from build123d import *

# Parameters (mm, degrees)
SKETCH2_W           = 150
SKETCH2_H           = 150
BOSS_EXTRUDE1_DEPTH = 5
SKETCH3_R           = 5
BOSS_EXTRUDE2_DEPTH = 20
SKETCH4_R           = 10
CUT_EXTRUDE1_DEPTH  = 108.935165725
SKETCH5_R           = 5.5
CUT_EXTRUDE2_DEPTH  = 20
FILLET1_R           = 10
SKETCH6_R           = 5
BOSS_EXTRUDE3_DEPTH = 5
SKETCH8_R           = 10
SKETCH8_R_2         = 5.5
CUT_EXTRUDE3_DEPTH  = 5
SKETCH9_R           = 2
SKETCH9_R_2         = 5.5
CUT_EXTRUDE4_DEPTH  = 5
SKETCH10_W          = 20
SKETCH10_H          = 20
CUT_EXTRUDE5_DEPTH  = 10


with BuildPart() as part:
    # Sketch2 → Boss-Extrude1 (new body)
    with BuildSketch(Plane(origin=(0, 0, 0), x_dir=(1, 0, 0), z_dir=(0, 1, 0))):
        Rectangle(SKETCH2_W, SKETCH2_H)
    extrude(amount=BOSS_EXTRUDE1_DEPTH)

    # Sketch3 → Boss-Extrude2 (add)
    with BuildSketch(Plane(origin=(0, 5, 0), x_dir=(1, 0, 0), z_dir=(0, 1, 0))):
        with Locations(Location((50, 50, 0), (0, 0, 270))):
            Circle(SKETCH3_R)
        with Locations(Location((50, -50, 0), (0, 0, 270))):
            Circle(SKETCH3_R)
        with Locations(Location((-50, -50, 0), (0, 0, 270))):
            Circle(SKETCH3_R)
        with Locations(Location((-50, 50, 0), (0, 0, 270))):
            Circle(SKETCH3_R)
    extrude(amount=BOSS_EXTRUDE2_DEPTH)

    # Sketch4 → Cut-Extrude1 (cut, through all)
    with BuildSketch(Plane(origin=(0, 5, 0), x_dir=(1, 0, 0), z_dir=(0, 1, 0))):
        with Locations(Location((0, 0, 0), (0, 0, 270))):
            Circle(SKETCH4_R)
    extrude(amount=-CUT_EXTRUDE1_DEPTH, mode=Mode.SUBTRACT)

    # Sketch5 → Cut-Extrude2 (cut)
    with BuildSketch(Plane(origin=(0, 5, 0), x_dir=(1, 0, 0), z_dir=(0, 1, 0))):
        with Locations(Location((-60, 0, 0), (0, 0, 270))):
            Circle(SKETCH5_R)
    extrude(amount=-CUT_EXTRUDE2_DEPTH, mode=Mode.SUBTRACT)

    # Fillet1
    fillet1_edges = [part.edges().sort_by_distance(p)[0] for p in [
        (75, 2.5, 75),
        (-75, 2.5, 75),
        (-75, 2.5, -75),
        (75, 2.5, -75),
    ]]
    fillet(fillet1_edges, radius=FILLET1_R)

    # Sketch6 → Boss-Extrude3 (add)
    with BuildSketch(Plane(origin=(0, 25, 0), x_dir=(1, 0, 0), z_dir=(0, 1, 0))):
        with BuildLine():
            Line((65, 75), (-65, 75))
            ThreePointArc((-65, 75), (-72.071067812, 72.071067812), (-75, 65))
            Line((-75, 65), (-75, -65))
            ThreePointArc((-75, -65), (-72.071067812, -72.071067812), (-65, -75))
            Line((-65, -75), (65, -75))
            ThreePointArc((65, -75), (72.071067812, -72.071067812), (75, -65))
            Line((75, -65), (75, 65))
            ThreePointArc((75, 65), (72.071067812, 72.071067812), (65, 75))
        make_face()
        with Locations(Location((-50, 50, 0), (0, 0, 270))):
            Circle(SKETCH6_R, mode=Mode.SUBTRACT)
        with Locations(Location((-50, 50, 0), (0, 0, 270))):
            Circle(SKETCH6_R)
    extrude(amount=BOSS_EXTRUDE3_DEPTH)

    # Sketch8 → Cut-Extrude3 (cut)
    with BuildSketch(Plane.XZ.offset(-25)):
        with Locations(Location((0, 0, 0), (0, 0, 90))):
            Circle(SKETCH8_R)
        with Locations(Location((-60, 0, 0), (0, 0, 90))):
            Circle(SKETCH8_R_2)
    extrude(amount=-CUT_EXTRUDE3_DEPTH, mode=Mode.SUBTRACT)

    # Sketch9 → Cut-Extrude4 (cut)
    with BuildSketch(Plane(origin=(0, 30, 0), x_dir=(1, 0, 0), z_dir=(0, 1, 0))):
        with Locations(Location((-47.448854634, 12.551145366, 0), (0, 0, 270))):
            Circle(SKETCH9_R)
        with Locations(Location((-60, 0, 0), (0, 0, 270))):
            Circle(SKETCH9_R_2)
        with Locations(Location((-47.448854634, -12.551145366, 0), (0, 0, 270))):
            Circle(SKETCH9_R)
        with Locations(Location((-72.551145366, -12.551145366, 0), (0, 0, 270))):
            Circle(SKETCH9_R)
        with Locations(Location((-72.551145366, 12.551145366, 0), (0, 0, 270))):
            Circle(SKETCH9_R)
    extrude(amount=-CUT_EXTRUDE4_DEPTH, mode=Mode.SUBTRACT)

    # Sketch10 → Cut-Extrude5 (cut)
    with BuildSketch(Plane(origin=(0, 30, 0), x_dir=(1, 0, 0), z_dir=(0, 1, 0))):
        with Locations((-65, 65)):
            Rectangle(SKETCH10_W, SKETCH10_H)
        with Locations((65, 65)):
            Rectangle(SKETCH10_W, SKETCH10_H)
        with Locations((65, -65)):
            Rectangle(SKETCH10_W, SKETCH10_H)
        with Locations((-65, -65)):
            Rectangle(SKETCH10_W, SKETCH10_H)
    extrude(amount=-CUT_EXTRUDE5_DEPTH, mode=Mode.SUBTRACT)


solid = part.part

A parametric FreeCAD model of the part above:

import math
import FreeCAD as App
import Part
import Sketcher
from FreeCAD import Vector
Q = App.Units.Quantity


def edges_at(feature, points):
    """Names of the edges that pass closest to the given points."""
    edges = feature.Shape.Edges
    near = lambda p: min(range(len(edges)), key=lambda i: edges[i].distToShape(Part.Vertex(*p))[0])
    return sorted({f"Edge{near(p) + 1}" for p in points})


def add_polygon(sketch, points):
    """Adds a closed chain of lines whose ends are joined by coincident constraints."""
    first, n = sketch.GeometryCount, len(points)
    for a, b in zip(points, points[1:] + points[:1]):
        sketch.addGeometry(Part.LineSegment(App.Vector(*a, 0), App.Vector(*b, 0)), False)
    for i in range(n):
        sketch.addConstraint(Sketcher.Constraint("Coincident", first + i, 2, first + (i + 1) % n, 1))

doc = App.newDocument("Part")
body = doc.addObject("PartDesign::Body", "Body")

# Sketch on XZ plane
sketch1 = doc.addObject("Sketcher::SketchObject", "Sketch")
body.addObject(sketch1)
sketch1.AttachmentSupport = (doc.XZ_Plane, [""])
sketch1.MapMode = "FlatFace"
add_polygon(sketch1, [(-75, -75), (-75, 75), (75, 75), (75, -75)])  # lines 0-3
sketch1.addConstraint(Sketcher.Constraint("Vertical", 0))
sketch1.addConstraint(Sketcher.Constraint("Horizontal", 1))
sketch1.addConstraint(Sketcher.Constraint("Vertical", 2))
sketch1.addConstraint(Sketcher.Constraint("Horizontal", 3))
sketch1.addConstraint(Sketcher.Constraint("Symmetric", 0, 2, 2, 2, -1, 1))
sketch1.addConstraint(Sketcher.Constraint("Equal", 3, 0))
sketch1.addConstraint(Sketcher.Constraint("DistanceX", 1, 1, 1, 2, Q("150 mm")))
pad1 = doc.addObject("PartDesign::Pad", "Pad")
body.addObject(pad1)
pad1.Profile = sketch1
pad1.Length = 5
pad1.Reversed = True

# Sketch on XZ plane
sketch2 = doc.addObject("Sketcher::SketchObject", "Sketch001")
body.addObject(sketch2)
sketch2.AttachmentSupport = (doc.XZ_Plane, [""])
sketch2.MapMode = "FlatFace"
sketch2.AttachmentOffset = App.Placement(Vector(0, 0, -5), App.Rotation())
sketch2.addGeometry(Part.Circle(Vector(50, -50, 0), Vector(0, 0, 1), 5), False)
sketch2.addGeometry(Part.Circle(Vector(50, 50, 0), Vector(0, 0, 1), 5), False)
sketch2.addGeometry(Part.Circle(Vector(-50, 50, 0), Vector(0, 0, 1), 5), False)
sketch2.addGeometry(Part.Circle(Vector(-50, -50, 0), Vector(0, 0, 1), 5), False)
sketch2.addConstraint(Sketcher.Constraint("Equal", 0, 1))
sketch2.addConstraint(Sketcher.Constraint("Equal", 1, 2))
sketch2.addConstraint(Sketcher.Constraint("Equal", 2, 3))
sketch2.addConstraint(Sketcher.Constraint("Symmetric", 0, 3, 2, 3, -1, 1))
sketch2.addConstraint(Sketcher.Constraint("Symmetric", 1, 3, 3, 3, -1, 1))
sketch2.addConstraint(Sketcher.Constraint("Symmetric", 1, 3, 2, 3, -2))
sketch2.addConstraint(Sketcher.Constraint("Diameter", 0, Q("10 mm")))
sketch2.addConstraint(Sketcher.Constraint("DistanceX", -1, 1, 0, 3, Q("50 mm")))
sketch2.addConstraint(Sketcher.Constraint("DistanceY", 0, 3, -1, 1, Q("50 mm")))
pad2 = doc.addObject("PartDesign::Pad", "Pad001")
body.addObject(pad2)
pad2.Profile = sketch2
pad2.Length = 20
pad2.Reversed = True

# Sketch on XZ plane
sketch3 = doc.addObject("Sketcher::SketchObject", "Sketch002")
body.addObject(sketch3)
sketch3.AttachmentSupport = (doc.XZ_Plane, [""])
sketch3.MapMode = "FlatFace"
sketch3.AttachmentOffset = App.Placement(Vector(0, 0, -5), App.Rotation())
sketch3.addGeometry(Part.Circle(Vector(0, 0, 0), Vector(0, 0, 1), 10), False)
sketch3.addConstraint(Sketcher.Constraint("Coincident", 0, 3, -1, 1))
sketch3.addConstraint(Sketcher.Constraint("Diameter", 0, Q("20 mm")))
pocket1 = doc.addObject("PartDesign::Pocket", "Pocket")
body.addObject(pocket1)
pocket1.Profile = sketch3
pocket1.Type = "ThroughAll"
pocket1.Reversed = True

# Sketch on XZ plane
sketch4 = doc.addObject("Sketcher::SketchObject", "Sketch003")
body.addObject(sketch4)
sketch4.AttachmentSupport = (doc.XZ_Plane, [""])
sketch4.MapMode = "FlatFace"
sketch4.AttachmentOffset = App.Placement(Vector(0, 0, -5), App.Rotation())
sketch4.addGeometry(Part.Circle(Vector(-60, 0, 0), Vector(0, 0, 1), 5.5), False)
sketch4.addConstraint(Sketcher.Constraint("PointOnObject", 0, 3, -1))
sketch4.addConstraint(Sketcher.Constraint("Diameter", 0, Q("11 mm")))
sketch4.addConstraint(Sketcher.Constraint("DistanceX", 0, 3, -1, 1, Q("60 mm")))
pocket2 = doc.addObject("PartDesign::Pocket", "Pocket001")
body.addObject(pocket2)
pocket2.Profile = sketch4
pocket2.Length = 20
pocket2.Reversed = True
doc.recompute()

fillet = doc.addObject("PartDesign::Fillet", "Fillet")
body.addObject(fillet)
fillet.Base = (pocket2, edges_at(pocket2, [
    (75, 2.5, 75),
    (-75, 2.5, 75),
    (-75, 2.5, -75),
    (75, 2.5, -75),
]))
fillet.Radius = 10

# Sketch on XZ plane
sketch5 = doc.addObject("Sketcher::SketchObject", "Sketch004")
body.addObject(sketch5)
sketch5.AttachmentSupport = (doc.XZ_Plane, [""])
sketch5.MapMode = "FlatFace"
sketch5.AttachmentOffset = App.Placement(Vector(0, 0, -25), App.Rotation())
sketch5.addGeometry(Part.LineSegment(Vector(65, -75, 0), Vector(-65, -75, 0)), False)
sketch5.addGeometry(Part.ArcOfCircle(Part.Circle(Vector(-65, -65, 0), Vector(0, 0, 1), 10), math.radians(180), math.radians(270)), False)
sketch5.addGeometry(Part.LineSegment(Vector(-75, -65, 0), Vector(-75, 65, 0)), False)
sketch5.addGeometry(Part.ArcOfCircle(Part.Circle(Vector(-65, 65, 0), Vector(0, 0, 1), 10), math.radians(90), math.radians(180)), False)
sketch5.addGeometry(Part.LineSegment(Vector(-65, 75, 0), Vector(65, 75, 0)), False)
sketch5.addGeometry(Part.ArcOfCircle(Part.Circle(Vector(65, 65, 0), Vector(0, 0, 1), 10), math.radians(0), math.radians(90)), False)
sketch5.addGeometry(Part.LineSegment(Vector(75, 65, 0), Vector(75, -65, 0)), False)
sketch5.addGeometry(Part.ArcOfCircle(Part.Circle(Vector(65, -65, 0), Vector(0, 0, 1), 10), math.radians(-90), math.radians(0)), False)
sketch5.addConstraint(Sketcher.Constraint("Tangent", 0, 2, 1, 2))
sketch5.addConstraint(Sketcher.Constraint("Tangent", 1, 1, 2, 1))
sketch5.addConstraint(Sketcher.Constraint("Tangent", 2, 2, 3, 2))
sketch5.addConstraint(Sketcher.Constraint("Tangent", 3, 1, 4, 1))
sketch5.addConstraint(Sketcher.Constraint("Tangent", 4, 2, 5, 2))
sketch5.addConstraint(Sketcher.Constraint("Tangent", 5, 1, 6, 1))
sketch5.addConstraint(Sketcher.Constraint("Tangent", 6, 2, 7, 2))
sketch5.addConstraint(Sketcher.Constraint("Tangent", 7, 1, 0, 1))
sketch5.addConstraint(Sketcher.Constraint("Horizontal", 0))
sketch5.addConstraint(Sketcher.Constraint("Vertical", 2))
sketch5.addConstraint(Sketcher.Constraint("Horizontal", 4))
sketch5.addConstraint(Sketcher.Constraint("Vertical", 6))
sketch5.addConstraint(Sketcher.Constraint("Equal", 1, 3))
sketch5.addConstraint(Sketcher.Constraint("Equal", 3, 5))
sketch5.addConstraint(Sketcher.Constraint("Equal", 5, 7))
sketch5.addConstraint(Sketcher.Constraint("Symmetric", 1, 3, 5, 3, -1, 1))
sketch5.addConstraint(Sketcher.Constraint("Equal", 4, 2))
sketch5.addConstraint(Sketcher.Constraint("Radius", 1, Q("10 mm")))
sketch5.addConstraint(Sketcher.Constraint("DistanceX", 0, 2, 0, 1, Q("130 mm")))
pad3 = doc.addObject("PartDesign::Pad", "Pad002")
body.addObject(pad3)
pad3.Profile = sketch5
pad3.Length = 5
pad3.Reversed = True

# Sketch on XZ plane
sketch6 = doc.addObject("Sketcher::SketchObject", "Sketch005")
body.addObject(sketch6)
sketch6.AttachmentSupport = (doc.XZ_Plane, [""])
sketch6.MapMode = "FlatFace"
sketch6.AttachmentOffset = App.Placement(Vector(0, 0, -25), App.Rotation())
sketch6.addGeometry(Part.Circle(Vector(0, 0, 0), Vector(0, 0, 1), 10), False)
sketch6.addGeometry(Part.Circle(Vector(-60, 0, 0), Vector(0, 0, 1), 5.5), False)
sketch6.addConstraint(Sketcher.Constraint("Coincident", 0, 3, -1, 1))
sketch6.addConstraint(Sketcher.Constraint("PointOnObject", 1, 3, -1))
sketch6.addConstraint(Sketcher.Constraint("Diameter", 0, Q("20 mm")))
sketch6.addConstraint(Sketcher.Constraint("Diameter", 1, Q("11 mm")))
sketch6.addConstraint(Sketcher.Constraint("DistanceX", 1, 3, -1, 1, Q("60 mm")))
pocket3 = doc.addObject("PartDesign::Pocket", "Pocket002")
body.addObject(pocket3)
pocket3.Profile = sketch6
pocket3.Length = 5

# Sketch on XZ plane
sketch7 = doc.addObject("Sketcher::SketchObject", "Sketch006")
body.addObject(sketch7)
sketch7.AttachmentSupport = (doc.XZ_Plane, [""])
sketch7.MapMode = "FlatFace"
sketch7.AttachmentOffset = App.Placement(Vector(0, 0, -30), App.Rotation())
sketch7.addGeometry(Part.Circle(Vector(-47.448855, -12.551145, 0), Vector(0, 0, 1), 2), False)
sketch7.addGeometry(Part.Circle(Vector(-60, 0, 0), Vector(0, 0, 1), 5.5), False)
sketch7.addGeometry(Part.Circle(Vector(-47.448855, 12.551145, 0), Vector(0, 0, 1), 2), False)
sketch7.addGeometry(Part.Circle(Vector(-72.551145, 12.551145, 0), Vector(0, 0, 1), 2), False)
sketch7.addGeometry(Part.Circle(Vector(-72.551145, -12.551145, 0), Vector(0, 0, 1), 2), False)
sketch7.addConstraint(Sketcher.Constraint("Equal", 0, 2))
sketch7.addConstraint(Sketcher.Constraint("Equal", 2, 3))
sketch7.addConstraint(Sketcher.Constraint("Equal", 3, 4))
sketch7.addConstraint(Sketcher.Constraint("Symmetric", 0, 3, 2, 3, -1))
sketch7.addConstraint(Sketcher.Constraint("Symmetric", 3, 3, 4, 3, -1))
sketch7.addConstraint(Sketcher.Constraint("PointOnObject", 1, 3, -1))
sketch7.addConstraint(Sketcher.Constraint("Horizontal", 2, 3, 3, 3))
sketch7.addConstraint(Sketcher.Constraint("Diameter", 0, Q("4 mm")))
sketch7.addConstraint(Sketcher.Constraint("Diameter", 1, Q("11 mm")))
sketch7.addConstraint(Sketcher.Constraint("DistanceX", 1, 3, -1, 1, Q("60 mm")))
sketch7.addConstraint(Sketcher.Constraint("DistanceY", 0, 3, 2, 3, Q("25.102291 mm")))
sketch7.addConstraint(Sketcher.Constraint("DistanceX", 3, 3, 2, 3, Q("25.102291 mm")))
sketch7.addConstraint(Sketcher.Constraint("DistanceX", 0, 3, -1, 1, Q("47.448855 mm")))
pocket4 = doc.addObject("PartDesign::Pocket", "Pocket003")
body.addObject(pocket4)
pocket4.Profile = sketch7
pocket4.Length = 5
pocket4.Reversed = True

# Sketch on XZ plane
sketch8 = doc.addObject("Sketcher::SketchObject", "Sketch007")
body.addObject(sketch8)
sketch8.AttachmentSupport = (doc.XZ_Plane, [""])
sketch8.MapMode = "FlatFace"
sketch8.AttachmentOffset = App.Placement(Vector(0, 0, -30), App.Rotation())
add_polygon(sketch8, [(-75, -75), (-75, -55), (-55, -55), (-55, -75)])  # lines 0-3
add_polygon(sketch8, [(55, -75), (55, -55), (75, -55), (75, -75)])  # lines 4-7
add_polygon(sketch8, [(55, 55), (55, 75), (75, 75), (75, 55)])  # lines 8-11
add_polygon(sketch8, [(-75, 55), (-75, 75), (-55, 75), (-55, 55)])  # lines 12-15
sketch8.addConstraint(Sketcher.Constraint("Vertical", 0))
sketch8.addConstraint(Sketcher.Constraint("Horizontal", 1))
sketch8.addConstraint(Sketcher.Constraint("Vertical", 2))
sketch8.addConstraint(Sketcher.Constraint("Horizontal", 3))
sketch8.addConstraint(Sketcher.Constraint("Vertical", 4))
sketch8.addConstraint(Sketcher.Constraint("Horizontal", 5))
sketch8.addConstraint(Sketcher.Constraint("Vertical", 6))
sketch8.addConstraint(Sketcher.Constraint("Horizontal", 7))
sketch8.addConstraint(Sketcher.Constraint("Vertical", 8))
sketch8.addConstraint(Sketcher.Constraint("Horizontal", 9))
sketch8.addConstraint(Sketcher.Constraint("Vertical", 10))
sketch8.addConstraint(Sketcher.Constraint("Horizontal", 11))
sketch8.addConstraint(Sketcher.Constraint("Vertical", 12))
sketch8.addConstraint(Sketcher.Constraint("Horizontal", 13))
sketch8.addConstraint(Sketcher.Constraint("Vertical", 14))
sketch8.addConstraint(Sketcher.Constraint("Horizontal", 15))
sketch8.addConstraint(Sketcher.Constraint("Symmetric", 2, 2, 8, 2, -1, 1))
sketch8.addConstraint(Sketcher.Constraint("Symmetric", 0, 2, 10, 2, -1, 1))
sketch8.addConstraint(Sketcher.Constraint("Symmetric", 6, 2, 12, 2, -1, 1))
sketch8.addConstraint(Sketcher.Constraint("Symmetric", 4, 2, 14, 2, -1, 1))
sketch8.addConstraint(Sketcher.Constraint("Symmetric", 1, 2, 4, 2, -2))
sketch8.addConstraint(Sketcher.Constraint("Symmetric", 3, 2, 6, 2, -2))
sketch8.addConstraint(Sketcher.Constraint("Equal", 15, 0))
sketch8.addConstraint(Sketcher.Constraint("DistanceX", 1, 1, 1, 2, Q("20 mm")))
sketch8.addConstraint(Sketcher.Constraint("DistanceX", 0, 2, -1, 1, Q("75 mm")))
sketch8.addConstraint(Sketcher.Constraint("DistanceY", 0, 2, -1, 1, Q("55 mm")))
pocket5 = doc.addObject("PartDesign::Pocket", "Pocket004")
body.addObject(pocket5)
pocket5.Profile = sketch8
pocket5.Length = 10
pocket5.Reversed = True

doc.recompute()
